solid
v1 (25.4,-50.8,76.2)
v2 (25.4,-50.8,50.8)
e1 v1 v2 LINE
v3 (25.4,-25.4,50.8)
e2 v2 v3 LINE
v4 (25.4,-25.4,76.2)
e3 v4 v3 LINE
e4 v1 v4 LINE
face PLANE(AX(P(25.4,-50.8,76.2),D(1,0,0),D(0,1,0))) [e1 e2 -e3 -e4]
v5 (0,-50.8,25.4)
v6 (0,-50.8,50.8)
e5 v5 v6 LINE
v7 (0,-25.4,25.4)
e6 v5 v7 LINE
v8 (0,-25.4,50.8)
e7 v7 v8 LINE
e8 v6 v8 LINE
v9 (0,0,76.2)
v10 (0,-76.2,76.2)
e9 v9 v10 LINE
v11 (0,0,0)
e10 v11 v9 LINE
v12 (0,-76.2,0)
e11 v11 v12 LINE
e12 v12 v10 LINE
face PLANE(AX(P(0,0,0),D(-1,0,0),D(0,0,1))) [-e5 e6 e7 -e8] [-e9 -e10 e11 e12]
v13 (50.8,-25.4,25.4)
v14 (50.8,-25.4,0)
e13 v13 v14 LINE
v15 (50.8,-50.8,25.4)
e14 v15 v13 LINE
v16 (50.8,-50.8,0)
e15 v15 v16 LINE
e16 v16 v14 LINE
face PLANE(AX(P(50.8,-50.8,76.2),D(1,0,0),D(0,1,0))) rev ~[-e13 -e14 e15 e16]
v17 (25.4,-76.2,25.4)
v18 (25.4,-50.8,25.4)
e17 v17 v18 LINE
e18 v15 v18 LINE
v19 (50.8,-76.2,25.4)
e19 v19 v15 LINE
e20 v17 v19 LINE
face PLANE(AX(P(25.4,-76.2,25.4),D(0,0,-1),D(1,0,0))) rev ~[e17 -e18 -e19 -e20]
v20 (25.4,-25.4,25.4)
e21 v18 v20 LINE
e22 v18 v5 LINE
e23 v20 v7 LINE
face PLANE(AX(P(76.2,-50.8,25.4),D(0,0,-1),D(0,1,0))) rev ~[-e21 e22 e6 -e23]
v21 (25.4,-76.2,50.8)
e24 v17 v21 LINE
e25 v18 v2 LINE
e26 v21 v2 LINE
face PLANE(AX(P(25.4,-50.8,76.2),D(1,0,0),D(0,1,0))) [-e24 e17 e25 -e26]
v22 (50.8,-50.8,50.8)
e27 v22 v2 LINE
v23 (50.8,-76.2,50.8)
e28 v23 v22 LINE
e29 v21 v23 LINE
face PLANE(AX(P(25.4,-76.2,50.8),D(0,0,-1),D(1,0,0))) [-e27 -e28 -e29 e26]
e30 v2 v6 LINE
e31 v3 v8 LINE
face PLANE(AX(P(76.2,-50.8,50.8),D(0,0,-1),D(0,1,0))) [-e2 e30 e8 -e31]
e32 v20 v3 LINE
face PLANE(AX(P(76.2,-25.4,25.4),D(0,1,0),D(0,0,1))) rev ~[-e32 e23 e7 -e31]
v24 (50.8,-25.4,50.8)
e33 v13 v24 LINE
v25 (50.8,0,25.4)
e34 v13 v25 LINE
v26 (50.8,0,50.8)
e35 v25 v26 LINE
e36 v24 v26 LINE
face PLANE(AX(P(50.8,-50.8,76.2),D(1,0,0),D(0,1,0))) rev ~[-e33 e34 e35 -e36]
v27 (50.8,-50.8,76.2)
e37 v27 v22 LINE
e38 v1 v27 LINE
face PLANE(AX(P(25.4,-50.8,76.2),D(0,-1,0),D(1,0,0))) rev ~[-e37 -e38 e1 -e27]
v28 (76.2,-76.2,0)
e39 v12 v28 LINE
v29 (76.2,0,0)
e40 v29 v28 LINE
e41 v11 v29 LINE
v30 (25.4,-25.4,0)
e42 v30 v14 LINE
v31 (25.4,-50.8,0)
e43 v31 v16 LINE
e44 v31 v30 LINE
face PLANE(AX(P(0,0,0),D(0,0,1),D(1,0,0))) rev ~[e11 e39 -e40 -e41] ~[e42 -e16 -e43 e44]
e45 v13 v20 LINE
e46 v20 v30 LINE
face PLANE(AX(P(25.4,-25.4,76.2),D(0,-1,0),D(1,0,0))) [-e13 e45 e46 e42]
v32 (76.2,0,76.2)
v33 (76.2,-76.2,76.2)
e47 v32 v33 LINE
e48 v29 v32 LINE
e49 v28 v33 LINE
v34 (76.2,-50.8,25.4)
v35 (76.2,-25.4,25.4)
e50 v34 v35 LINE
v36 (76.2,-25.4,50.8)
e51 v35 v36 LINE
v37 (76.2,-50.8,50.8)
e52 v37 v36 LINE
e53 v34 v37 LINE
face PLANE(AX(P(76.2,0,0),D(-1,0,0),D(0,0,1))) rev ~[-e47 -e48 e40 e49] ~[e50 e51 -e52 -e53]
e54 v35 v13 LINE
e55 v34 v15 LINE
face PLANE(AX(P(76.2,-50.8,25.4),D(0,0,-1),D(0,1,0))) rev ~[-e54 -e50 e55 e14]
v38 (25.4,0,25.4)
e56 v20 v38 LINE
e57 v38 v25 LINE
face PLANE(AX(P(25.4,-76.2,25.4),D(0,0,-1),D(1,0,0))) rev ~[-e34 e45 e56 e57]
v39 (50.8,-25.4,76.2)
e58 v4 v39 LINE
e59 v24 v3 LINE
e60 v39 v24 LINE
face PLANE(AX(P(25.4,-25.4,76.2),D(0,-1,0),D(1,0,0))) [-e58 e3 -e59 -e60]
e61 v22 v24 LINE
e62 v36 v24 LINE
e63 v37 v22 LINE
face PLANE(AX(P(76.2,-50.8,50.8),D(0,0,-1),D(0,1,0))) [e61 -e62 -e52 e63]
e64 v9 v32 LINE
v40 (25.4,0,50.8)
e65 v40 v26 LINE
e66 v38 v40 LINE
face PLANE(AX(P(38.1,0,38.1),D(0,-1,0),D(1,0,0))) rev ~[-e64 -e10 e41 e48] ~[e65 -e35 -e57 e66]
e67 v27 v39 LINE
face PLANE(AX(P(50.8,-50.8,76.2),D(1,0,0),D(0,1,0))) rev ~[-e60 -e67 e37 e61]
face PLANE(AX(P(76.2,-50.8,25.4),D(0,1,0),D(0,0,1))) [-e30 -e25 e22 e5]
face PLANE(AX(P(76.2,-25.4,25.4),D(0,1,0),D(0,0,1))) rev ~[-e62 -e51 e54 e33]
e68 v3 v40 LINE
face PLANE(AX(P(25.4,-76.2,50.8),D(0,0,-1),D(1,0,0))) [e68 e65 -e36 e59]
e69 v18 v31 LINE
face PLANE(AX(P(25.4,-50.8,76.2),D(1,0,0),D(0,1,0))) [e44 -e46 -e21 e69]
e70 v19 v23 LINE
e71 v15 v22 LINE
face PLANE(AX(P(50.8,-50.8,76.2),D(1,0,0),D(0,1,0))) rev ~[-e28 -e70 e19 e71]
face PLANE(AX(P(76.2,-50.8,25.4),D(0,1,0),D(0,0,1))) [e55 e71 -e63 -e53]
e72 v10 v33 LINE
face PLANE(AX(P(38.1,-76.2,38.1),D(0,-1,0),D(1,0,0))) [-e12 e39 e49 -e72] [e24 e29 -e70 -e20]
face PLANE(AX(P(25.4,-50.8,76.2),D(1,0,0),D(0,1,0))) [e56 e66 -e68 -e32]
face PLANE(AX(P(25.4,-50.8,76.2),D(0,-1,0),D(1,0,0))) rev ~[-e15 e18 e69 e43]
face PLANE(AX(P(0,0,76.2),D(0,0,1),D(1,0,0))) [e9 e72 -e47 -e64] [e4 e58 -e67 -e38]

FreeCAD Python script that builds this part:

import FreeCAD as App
import Part
import Sketcher

V = App.Vector
Q = App.Units.Quantity


def add_polygon(sketch, points):
    """Adds a closed chain of lines whose ends are joined by coincident constraints."""
    first, n = sketch.GeometryCount, len(points)
    for a, b in zip(points, points[1:] + points[:1]):
        sketch.addGeometry(Part.LineSegment(App.Vector(*a, 0), App.Vector(*b, 0)), False)
    for i in range(n):
        sketch.addConstraint(Sketcher.Constraint("Coincident", first + i, 2, first + (i + 1) % n, 1))

doc = App.newDocument("Part")
body = doc.addObject("PartDesign::Body", "Body")

sketch1 = doc.addObject("Sketcher::SketchObject", "Sketch")
body.addObject(sketch1)
sketch1.AttachmentSupport = (doc.XZ_Plane, [""])
sketch1.MapMode = "FlatFace"
add_polygon(sketch1, [(0, 76), (0, 0), (76, 0), (76, 76)])
sketch1.addConstraint([
    Sketcher.Constraint("Vertical", 0),
    Sketcher.Constraint("Horizontal", 1),
    Sketcher.Constraint("Vertical", 2),
    Sketcher.Constraint("Horizontal", 3),
    Sketcher.Constraint("Coincident", 0, 2, -1, 1),
    Sketcher.Constraint("Equal", 3, 0),
    Sketcher.Constraint("DistanceX", 1, 1, 1, 2, Q("3 in")),
])
pad1 = doc.addObject("PartDesign::Pad", "Pad")
body.addObject(pad1)
pad1.Profile = sketch1
pad1.Length = Q("3 in")

sketch2 = doc.addObject("Sketcher::SketchObject", "Sketch001")
body.addObject(sketch2)
sketch2.AttachmentSupport = (doc.XZ_Plane, [""])
sketch2.MapMode = "FlatFace"
sketch2.AttachmentOffset = App.Placement(V(0, 0, 3 * 25.4), App.Rotation())
add_polygon(sketch2, [(25, 51), (25, 25), (51, 25), (51, 51)])
sketch2.addConstraint([
    Sketcher.Constraint("Vertical", 0),
    Sketcher.Constraint("Horizontal", 1),
    Sketcher.Constraint("Vertical", 2),
    Sketcher.Constraint("Horizontal", 3),
    Sketcher.Constraint("Equal", 3, 0),
    Sketcher.Constraint("DistanceX", 1, 1, 1, 2, Q("1 in")),
    Sketcher.Constraint("DistanceX", -1, 1, 0, 2, Q("1 in")),
    Sketcher.Constraint("DistanceY", -1, 1, 0, 2, Q("1 in")),
])
pocket1 = doc.addObject("PartDesign::Pocket", "Pocket")
body.addObject(pocket1)
pocket1.Profile = sketch2
pocket1.Length = Q("3 in")

sketch3 = doc.addObject("Sketcher::SketchObject", "Sketch002")
body.addObject(sketch3)
sketch3.AttachmentSupport = (doc.XY_Plane, [""])
sketch3.MapMode = "FlatFace"
sketch3.AttachmentOffset = App.Placement(V(0, 0, 3 * 25.4), App.Rotation())
add_polygon(sketch3, [(25, -25), (25, -51), (51, -51), (51, -25)])
sketch3.addConstraint([
    Sketcher.Constraint("Vertical", 0),
    Sketcher.Constraint("Horizontal", 1),
    Sketcher.Constraint("Vertical", 2),
    Sketcher.Constraint("Horizontal", 3),
    Sketcher.Constraint("Equal", 3, 0),
    Sketcher.Constraint("DistanceX", 1, 1, 1, 2, Q("1 in")),
    Sketcher.Constraint("DistanceX", -1, 1, 0, 2, Q("1 in")),
    Sketcher.Constraint("DistanceY", 0, 2, -1, 1, Q("2 in")),
])
pocket2 = doc.addObject("PartDesign::Pocket", "Pocket001")
body.addObject(pocket2)
pocket2.Profile = sketch3
pocket2.Length = Q("3 in")

sketch4 = doc.addObject("Sketcher::SketchObject", "Sketch003")
body.addObject(sketch4)
sketch4.AttachmentSupport = (doc.YZ_Plane, [""])
sketch4.MapMode = "FlatFace"
sketch4.AttachmentOffset = App.Placement(V(0, 0, 3 * 25.4), App.Rotation())
add_polygon(sketch4, [(-51, 51), (-51, 25), (-25, 25), (-25, 51)])
sketch4.addConstraint([
    Sketcher.Constraint("Vertical", 0),
    Sketcher.Constraint("Horizontal", 1),
    Sketcher.Constraint("Vertical", 2),
    Sketcher.Constraint("Horizontal", 3),
    Sketcher.Constraint("Equal", 3, 0),
    Sketcher.Constraint("DistanceX", 1, 1, 1, 2, Q("1 in")),
    Sketcher.Constraint("DistanceX", 0, 2, -1, 1, Q("2 in")),
    Sketcher.Constraint("DistanceY", -1, 1, 0, 2, Q("1 in")),
])
pocket3 = doc.addObject("PartDesign::Pocket", "Pocket002")
body.addObject(pocket3)
pocket3.Profile = sketch4
pocket3.Length = Q("3 in")

doc.recompute()
